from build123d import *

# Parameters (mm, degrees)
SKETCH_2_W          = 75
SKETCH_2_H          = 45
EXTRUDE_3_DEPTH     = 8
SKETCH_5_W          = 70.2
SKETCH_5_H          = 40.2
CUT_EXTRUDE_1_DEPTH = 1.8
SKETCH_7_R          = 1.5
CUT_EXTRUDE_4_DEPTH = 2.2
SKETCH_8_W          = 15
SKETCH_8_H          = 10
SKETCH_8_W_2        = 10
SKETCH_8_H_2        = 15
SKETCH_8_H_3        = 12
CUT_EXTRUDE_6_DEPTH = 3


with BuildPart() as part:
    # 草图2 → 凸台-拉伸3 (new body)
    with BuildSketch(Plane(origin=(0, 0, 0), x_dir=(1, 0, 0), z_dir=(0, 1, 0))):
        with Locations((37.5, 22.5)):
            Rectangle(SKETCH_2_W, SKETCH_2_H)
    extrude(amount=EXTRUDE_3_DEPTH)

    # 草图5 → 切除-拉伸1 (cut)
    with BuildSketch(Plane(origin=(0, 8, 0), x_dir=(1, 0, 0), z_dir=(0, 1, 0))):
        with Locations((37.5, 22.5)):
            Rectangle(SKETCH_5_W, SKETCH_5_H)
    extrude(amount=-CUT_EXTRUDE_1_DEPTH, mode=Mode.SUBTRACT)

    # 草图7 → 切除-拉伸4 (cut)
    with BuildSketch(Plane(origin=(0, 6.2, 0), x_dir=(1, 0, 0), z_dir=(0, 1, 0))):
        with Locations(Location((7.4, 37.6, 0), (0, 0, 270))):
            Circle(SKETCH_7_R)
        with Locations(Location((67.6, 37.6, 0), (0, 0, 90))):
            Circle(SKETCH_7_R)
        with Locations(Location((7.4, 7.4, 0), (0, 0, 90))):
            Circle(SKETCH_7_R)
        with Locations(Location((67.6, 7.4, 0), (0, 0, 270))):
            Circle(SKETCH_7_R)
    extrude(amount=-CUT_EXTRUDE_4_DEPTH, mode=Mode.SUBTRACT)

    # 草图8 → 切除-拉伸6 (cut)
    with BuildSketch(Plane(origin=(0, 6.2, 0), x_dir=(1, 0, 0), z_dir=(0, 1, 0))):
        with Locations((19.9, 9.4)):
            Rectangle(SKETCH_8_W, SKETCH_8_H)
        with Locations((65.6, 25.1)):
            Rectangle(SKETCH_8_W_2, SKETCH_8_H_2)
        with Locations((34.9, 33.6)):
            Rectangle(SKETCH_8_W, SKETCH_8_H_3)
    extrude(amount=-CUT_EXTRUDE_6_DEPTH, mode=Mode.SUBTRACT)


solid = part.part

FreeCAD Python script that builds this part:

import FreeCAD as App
import Part
import Sketcher

V = App.Vector
Q = App.Units.Quantity


def add_polygon(sketch, points):
    """Adds a closed chain of lines whose ends are joined by coincident constraints."""
    first, n = sketch.GeometryCount, len(points)
    for a, b in zip(points, points[1:] + points[:1]):
        sketch.addGeometry(Part.LineSegment(App.Vector(*a, 0), App.Vector(*b, 0)), False)
    for i in range(n):
        sketch.addConstraint(Sketcher.Constraint("Coincident", first + i, 2, first + (i + 1) % n, 1))

doc = App.newDocument("Part")
body = doc.addObject("PartDesign::Body", "Body")

# Sketch on XZ plane
sketch1 = body.newObject("Sketcher::SketchObject", "Sketch")
sketch1.AttachmentSupport = (doc.getObject("XZ_Plane"), [""])
sketch1.MapMode = "FlatFace"
add_polygon(sketch1, [(0, -45), (0, 0), (75, 0), (75, -45)])  # lines 0-3
sketch1.addConstraint([
    Sketcher.Constraint("Vertical", 0),
    Sketcher.Constraint("Horizontal", 1),
    Sketcher.Constraint("Vertical", 2),
    Sketcher.Constraint("Horizontal", 3),
    Sketcher.Constraint("Coincident", 0, 2, -1, 1),
    Sketcher.Constraint("DistanceX", 1, 1, 1, 2, Q("75 mm")),
    Sketcher.Constraint("DistanceY", 0, 1, 0, 2, Q("45 mm")),
])
pad1 = body.newObject("PartDesign::Pad", "Pad")
pad1.Profile = sketch1
pad1.Length = 8
pad1.Reversed = True

# Sketch on XZ plane
sketch2 = body.newObject("Sketcher::SketchObject", "Sketch001")
sketch2.AttachmentSupport = (doc.getObject("XZ_Plane"), [""])
sketch2.MapMode = "FlatFace"
sketch2.AttachmentOffset = App.Placement(V(0, 0, -8), App.Rotation())
add_polygon(sketch2, [(2.4, -42.6), (2.4, -2.4), (72.6, -2.4), (72.6, -42.6)])  # lines 0-3
sketch2.addConstraint([
    Sketcher.Constraint("Vertical", 0),
    Sketcher.Constraint("Horizontal", 1),
    Sketcher.Constraint("Vertical", 2),
    Sketcher.Constraint("Horizontal", 3),
    Sketcher.Constraint("DistanceX", 1, 1, 1, 2, Q("70.2 mm")),
    Sketcher.Constraint("DistanceY", 0, 1, 0, 2, Q("40.2 mm")),
    Sketcher.Constraint("DistanceX", -1, 1, 0, 2, Q("2.4 mm")),
    Sketcher.Constraint("DistanceY", 0, 2, -1, 1, Q("2.4 mm")),
])
pocket1 = body.newObject("PartDesign::Pocket", "Pocket")
pocket1.Profile = sketch2
pocket1.Length = 1.8
pocket1.Reversed = True

# Sketch on XZ plane
sketch3 = body.newObject("Sketcher::SketchObject", "Sketch002")
sketch3.AttachmentSupport = (doc.getObject("XZ_Plane"), [""])
sketch3.MapMode = "FlatFace"
sketch3.AttachmentOffset = App.Placement(V(0, 0, -6.2), App.Rotation())
sketch3.addGeometry([
    Part.Circle(V(7.4, -37.6, 0), V(0, 0, 1), 1.5),
    Part.Circle(V(67.6, -37.6, 0), V(0, 0, 1), 1.5),
    Part.Circle(V(7.4, -7.4, 0), V(0, 0, 1), 1.5),
    Part.Circle(V(67.6, -7.4, 0), V(0, 0, 1), 1.5),
], False)
sketch3.addConstraint([
    Sketcher.Constraint("Equal", 0, 1),
    Sketcher.Constraint("Equal", 1, 2),
    Sketcher.Constraint("Equal", 2, 3),
    Sketcher.Constraint("Horizontal", 0, 3, 1, 3),
    Sketcher.Constraint("Horizontal", 2, 3, 3, 3),
    Sketcher.Constraint("Vertical", 0, 3, 2, 3),
    Sketcher.Constraint("Vertical", 1, 3, 3, 3),
    Sketcher.Constraint("Diameter", 0, Q("3 mm")),
    Sketcher.Constraint("DistanceX", -1, 1, 0, 3, Q("7.4 mm")),
    Sketcher.Constraint("DistanceY", 0, 3, -1, 1, Q("37.6 mm")),
    Sketcher.Constraint("DistanceX", -1, 1, 1, 3, Q("67.6 mm")),
    Sketcher.Constraint("DistanceY", 2, 3, -1, 1, Q("7.4 mm")),
])
pocket2 = body.newObject("PartDesign::Pocket", "Pocket001")
pocket2.Profile = sketch3
pocket2.Length = 2.2
pocket2.Reversed = True

# Sketch on XZ plane
sketch4 = body.newObject("Sketcher::SketchObject", "Sketch003")
sketch4.AttachmentSupport = (doc.getObject("XZ_Plane"), [""])
sketch4.MapMode = "FlatFace"
sketch4.AttachmentOffset = App.Placement(V(0, 0, -6.2), App.Rotation())
add_polygon(sketch4, [(12.4, -14.4), (12.4, -4.4), (27.4, -4.4), (27.4, -14.4)])  # lines 0-3
add_polygon(sketch4, [(60.6, -32.6), (60.6, -17.6), (70.6, -17.6), (70.6, -32.6)])  # lines 4-7
add_polygon(sketch4, [(27.4, -39.6), (27.4, -27.6), (42.4, -27.6), (42.4, -39.6)])  # lines 8-11
sketch4.addConstraint([
    Sketcher.Constraint("Vertical", 0),
    Sketcher.Constraint("Horizontal", 1),
    Sketcher.Constraint("Vertical", 2),
    Sketcher.Constraint("Horizontal", 3),
    Sketcher.Constraint("Vertical", 4),
    Sketcher.Constraint("Horizontal", 5),
    Sketcher.Constraint("Vertical", 6),
    Sketcher.Constraint("Horizontal", 7),
    Sketcher.Constraint("Vertical", 8),
    Sketcher.Constraint("Horizontal", 9),
    Sketcher.Constraint("Vertical", 10),
    Sketcher.Constraint("Horizontal", 11),
    Sketcher.Constraint("Vertical", 2, 2, 8, 2),
    Sketcher.Constraint("Equal", 3, 9),
    Sketcher.Constraint("Equal", 7, 0),
    Sketcher.Constraint("Equal", 11, 4),
    Sketcher.Constraint("DistanceX", 1, 1, 1, 2, Q("15 mm")),
    Sketcher.Constraint("DistanceX", 5, 1, 5, 2, Q("10 mm")),
    Sketcher.Constraint("DistanceY", 8, 1, 8, 2, Q("12 mm")),
    Sketcher.Constraint("DistanceY", 7, 2, 8, 2, Q("5 mm")),
    Sketcher.Constraint("DistanceX", -1, 1, 0, 2, Q("12.4 mm")),
    Sketcher.Constraint("DistanceY", 0, 2, -1, 1, Q("4.4 mm")),
    Sketcher.Constraint("DistanceX", -1, 1, 4, 2, Q("60.6 mm")),
    Sketcher.Constraint("DistanceY", 4, 2, -1, 1, Q("17.6 mm")),
])
pocket3 = body.newObject("PartDesign::Pocket", "Pocket002")
pocket3.Profile = sketch4
pocket3.Length = 3
pocket3.Reversed = True

doc.recompute()
